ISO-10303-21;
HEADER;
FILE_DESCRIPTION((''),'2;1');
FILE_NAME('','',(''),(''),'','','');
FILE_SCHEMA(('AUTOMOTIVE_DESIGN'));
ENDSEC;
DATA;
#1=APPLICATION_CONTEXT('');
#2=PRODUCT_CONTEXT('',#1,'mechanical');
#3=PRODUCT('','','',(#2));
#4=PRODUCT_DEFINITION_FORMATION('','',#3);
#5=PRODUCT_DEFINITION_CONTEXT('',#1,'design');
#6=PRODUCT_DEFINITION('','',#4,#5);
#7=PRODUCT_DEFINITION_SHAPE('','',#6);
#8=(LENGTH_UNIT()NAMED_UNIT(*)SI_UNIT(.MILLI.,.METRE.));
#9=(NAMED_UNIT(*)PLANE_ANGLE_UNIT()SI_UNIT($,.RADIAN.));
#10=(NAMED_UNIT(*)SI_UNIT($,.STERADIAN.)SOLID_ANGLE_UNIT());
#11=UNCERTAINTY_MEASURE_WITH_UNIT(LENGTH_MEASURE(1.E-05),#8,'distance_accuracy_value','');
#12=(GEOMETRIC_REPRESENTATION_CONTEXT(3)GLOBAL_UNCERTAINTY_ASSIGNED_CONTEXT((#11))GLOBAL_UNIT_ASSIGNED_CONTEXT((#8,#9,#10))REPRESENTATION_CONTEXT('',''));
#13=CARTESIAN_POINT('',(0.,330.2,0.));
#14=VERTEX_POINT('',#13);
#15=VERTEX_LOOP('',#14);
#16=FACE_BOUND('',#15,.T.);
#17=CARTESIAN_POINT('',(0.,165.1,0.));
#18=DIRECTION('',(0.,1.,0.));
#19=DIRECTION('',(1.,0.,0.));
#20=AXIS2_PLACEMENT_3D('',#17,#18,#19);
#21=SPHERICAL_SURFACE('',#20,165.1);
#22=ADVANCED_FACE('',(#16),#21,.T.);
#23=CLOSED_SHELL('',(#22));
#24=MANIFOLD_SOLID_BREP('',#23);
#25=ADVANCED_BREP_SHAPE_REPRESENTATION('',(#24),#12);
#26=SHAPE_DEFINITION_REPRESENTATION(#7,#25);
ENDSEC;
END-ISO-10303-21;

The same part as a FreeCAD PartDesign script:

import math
import FreeCAD as App
import Part
import Sketcher

V = App.Vector
Q = App.Units.Quantity

doc = App.newDocument("Part")
body = doc.addObject("PartDesign::Body", "Body")

# Sketch on XY plane
sketch1 = doc.addObject("Sketcher::SketchObject", "Sketch")
body.addObject(sketch1)
sketch1.AttachmentSupport = (doc.XY_Plane, [""])
sketch1.MapMode = "FlatFace"
sketch1.addGeometry([
    Part.LineSegment(V(0, 330.2, 0), V(0, 0, 0)),
    Part.ArcOfCircle(Part.Circle(V(0, 165.1, 0), V(0, 0, 1), 165.1), math.radians(-90), math.radians(90)),
], False)
sketch1.addConstraint([
    Sketcher.Constraint("Coincident", 0, 1, 1, 2),
    Sketcher.Constraint("Coincident", 1, 1, 0, 2),
    Sketcher.Constraint("Vertical", 0),
    Sketcher.Constraint("Coincident", 1, 1, -1, 1),
    Sketcher.Constraint("PointOnObject", 1, 3, -2),
    Sketcher.Constraint("Radius", 1, Q("6.5 in")),
])
revolution = doc.addObject("PartDesign::Revolution", "Revolution")
body.addObject(revolution)
revolution.Profile = sketch1
revolution.ReferenceAxis = (sketch1, ["V_Axis"])
revolution.Angle = 360

doc.recompute()
